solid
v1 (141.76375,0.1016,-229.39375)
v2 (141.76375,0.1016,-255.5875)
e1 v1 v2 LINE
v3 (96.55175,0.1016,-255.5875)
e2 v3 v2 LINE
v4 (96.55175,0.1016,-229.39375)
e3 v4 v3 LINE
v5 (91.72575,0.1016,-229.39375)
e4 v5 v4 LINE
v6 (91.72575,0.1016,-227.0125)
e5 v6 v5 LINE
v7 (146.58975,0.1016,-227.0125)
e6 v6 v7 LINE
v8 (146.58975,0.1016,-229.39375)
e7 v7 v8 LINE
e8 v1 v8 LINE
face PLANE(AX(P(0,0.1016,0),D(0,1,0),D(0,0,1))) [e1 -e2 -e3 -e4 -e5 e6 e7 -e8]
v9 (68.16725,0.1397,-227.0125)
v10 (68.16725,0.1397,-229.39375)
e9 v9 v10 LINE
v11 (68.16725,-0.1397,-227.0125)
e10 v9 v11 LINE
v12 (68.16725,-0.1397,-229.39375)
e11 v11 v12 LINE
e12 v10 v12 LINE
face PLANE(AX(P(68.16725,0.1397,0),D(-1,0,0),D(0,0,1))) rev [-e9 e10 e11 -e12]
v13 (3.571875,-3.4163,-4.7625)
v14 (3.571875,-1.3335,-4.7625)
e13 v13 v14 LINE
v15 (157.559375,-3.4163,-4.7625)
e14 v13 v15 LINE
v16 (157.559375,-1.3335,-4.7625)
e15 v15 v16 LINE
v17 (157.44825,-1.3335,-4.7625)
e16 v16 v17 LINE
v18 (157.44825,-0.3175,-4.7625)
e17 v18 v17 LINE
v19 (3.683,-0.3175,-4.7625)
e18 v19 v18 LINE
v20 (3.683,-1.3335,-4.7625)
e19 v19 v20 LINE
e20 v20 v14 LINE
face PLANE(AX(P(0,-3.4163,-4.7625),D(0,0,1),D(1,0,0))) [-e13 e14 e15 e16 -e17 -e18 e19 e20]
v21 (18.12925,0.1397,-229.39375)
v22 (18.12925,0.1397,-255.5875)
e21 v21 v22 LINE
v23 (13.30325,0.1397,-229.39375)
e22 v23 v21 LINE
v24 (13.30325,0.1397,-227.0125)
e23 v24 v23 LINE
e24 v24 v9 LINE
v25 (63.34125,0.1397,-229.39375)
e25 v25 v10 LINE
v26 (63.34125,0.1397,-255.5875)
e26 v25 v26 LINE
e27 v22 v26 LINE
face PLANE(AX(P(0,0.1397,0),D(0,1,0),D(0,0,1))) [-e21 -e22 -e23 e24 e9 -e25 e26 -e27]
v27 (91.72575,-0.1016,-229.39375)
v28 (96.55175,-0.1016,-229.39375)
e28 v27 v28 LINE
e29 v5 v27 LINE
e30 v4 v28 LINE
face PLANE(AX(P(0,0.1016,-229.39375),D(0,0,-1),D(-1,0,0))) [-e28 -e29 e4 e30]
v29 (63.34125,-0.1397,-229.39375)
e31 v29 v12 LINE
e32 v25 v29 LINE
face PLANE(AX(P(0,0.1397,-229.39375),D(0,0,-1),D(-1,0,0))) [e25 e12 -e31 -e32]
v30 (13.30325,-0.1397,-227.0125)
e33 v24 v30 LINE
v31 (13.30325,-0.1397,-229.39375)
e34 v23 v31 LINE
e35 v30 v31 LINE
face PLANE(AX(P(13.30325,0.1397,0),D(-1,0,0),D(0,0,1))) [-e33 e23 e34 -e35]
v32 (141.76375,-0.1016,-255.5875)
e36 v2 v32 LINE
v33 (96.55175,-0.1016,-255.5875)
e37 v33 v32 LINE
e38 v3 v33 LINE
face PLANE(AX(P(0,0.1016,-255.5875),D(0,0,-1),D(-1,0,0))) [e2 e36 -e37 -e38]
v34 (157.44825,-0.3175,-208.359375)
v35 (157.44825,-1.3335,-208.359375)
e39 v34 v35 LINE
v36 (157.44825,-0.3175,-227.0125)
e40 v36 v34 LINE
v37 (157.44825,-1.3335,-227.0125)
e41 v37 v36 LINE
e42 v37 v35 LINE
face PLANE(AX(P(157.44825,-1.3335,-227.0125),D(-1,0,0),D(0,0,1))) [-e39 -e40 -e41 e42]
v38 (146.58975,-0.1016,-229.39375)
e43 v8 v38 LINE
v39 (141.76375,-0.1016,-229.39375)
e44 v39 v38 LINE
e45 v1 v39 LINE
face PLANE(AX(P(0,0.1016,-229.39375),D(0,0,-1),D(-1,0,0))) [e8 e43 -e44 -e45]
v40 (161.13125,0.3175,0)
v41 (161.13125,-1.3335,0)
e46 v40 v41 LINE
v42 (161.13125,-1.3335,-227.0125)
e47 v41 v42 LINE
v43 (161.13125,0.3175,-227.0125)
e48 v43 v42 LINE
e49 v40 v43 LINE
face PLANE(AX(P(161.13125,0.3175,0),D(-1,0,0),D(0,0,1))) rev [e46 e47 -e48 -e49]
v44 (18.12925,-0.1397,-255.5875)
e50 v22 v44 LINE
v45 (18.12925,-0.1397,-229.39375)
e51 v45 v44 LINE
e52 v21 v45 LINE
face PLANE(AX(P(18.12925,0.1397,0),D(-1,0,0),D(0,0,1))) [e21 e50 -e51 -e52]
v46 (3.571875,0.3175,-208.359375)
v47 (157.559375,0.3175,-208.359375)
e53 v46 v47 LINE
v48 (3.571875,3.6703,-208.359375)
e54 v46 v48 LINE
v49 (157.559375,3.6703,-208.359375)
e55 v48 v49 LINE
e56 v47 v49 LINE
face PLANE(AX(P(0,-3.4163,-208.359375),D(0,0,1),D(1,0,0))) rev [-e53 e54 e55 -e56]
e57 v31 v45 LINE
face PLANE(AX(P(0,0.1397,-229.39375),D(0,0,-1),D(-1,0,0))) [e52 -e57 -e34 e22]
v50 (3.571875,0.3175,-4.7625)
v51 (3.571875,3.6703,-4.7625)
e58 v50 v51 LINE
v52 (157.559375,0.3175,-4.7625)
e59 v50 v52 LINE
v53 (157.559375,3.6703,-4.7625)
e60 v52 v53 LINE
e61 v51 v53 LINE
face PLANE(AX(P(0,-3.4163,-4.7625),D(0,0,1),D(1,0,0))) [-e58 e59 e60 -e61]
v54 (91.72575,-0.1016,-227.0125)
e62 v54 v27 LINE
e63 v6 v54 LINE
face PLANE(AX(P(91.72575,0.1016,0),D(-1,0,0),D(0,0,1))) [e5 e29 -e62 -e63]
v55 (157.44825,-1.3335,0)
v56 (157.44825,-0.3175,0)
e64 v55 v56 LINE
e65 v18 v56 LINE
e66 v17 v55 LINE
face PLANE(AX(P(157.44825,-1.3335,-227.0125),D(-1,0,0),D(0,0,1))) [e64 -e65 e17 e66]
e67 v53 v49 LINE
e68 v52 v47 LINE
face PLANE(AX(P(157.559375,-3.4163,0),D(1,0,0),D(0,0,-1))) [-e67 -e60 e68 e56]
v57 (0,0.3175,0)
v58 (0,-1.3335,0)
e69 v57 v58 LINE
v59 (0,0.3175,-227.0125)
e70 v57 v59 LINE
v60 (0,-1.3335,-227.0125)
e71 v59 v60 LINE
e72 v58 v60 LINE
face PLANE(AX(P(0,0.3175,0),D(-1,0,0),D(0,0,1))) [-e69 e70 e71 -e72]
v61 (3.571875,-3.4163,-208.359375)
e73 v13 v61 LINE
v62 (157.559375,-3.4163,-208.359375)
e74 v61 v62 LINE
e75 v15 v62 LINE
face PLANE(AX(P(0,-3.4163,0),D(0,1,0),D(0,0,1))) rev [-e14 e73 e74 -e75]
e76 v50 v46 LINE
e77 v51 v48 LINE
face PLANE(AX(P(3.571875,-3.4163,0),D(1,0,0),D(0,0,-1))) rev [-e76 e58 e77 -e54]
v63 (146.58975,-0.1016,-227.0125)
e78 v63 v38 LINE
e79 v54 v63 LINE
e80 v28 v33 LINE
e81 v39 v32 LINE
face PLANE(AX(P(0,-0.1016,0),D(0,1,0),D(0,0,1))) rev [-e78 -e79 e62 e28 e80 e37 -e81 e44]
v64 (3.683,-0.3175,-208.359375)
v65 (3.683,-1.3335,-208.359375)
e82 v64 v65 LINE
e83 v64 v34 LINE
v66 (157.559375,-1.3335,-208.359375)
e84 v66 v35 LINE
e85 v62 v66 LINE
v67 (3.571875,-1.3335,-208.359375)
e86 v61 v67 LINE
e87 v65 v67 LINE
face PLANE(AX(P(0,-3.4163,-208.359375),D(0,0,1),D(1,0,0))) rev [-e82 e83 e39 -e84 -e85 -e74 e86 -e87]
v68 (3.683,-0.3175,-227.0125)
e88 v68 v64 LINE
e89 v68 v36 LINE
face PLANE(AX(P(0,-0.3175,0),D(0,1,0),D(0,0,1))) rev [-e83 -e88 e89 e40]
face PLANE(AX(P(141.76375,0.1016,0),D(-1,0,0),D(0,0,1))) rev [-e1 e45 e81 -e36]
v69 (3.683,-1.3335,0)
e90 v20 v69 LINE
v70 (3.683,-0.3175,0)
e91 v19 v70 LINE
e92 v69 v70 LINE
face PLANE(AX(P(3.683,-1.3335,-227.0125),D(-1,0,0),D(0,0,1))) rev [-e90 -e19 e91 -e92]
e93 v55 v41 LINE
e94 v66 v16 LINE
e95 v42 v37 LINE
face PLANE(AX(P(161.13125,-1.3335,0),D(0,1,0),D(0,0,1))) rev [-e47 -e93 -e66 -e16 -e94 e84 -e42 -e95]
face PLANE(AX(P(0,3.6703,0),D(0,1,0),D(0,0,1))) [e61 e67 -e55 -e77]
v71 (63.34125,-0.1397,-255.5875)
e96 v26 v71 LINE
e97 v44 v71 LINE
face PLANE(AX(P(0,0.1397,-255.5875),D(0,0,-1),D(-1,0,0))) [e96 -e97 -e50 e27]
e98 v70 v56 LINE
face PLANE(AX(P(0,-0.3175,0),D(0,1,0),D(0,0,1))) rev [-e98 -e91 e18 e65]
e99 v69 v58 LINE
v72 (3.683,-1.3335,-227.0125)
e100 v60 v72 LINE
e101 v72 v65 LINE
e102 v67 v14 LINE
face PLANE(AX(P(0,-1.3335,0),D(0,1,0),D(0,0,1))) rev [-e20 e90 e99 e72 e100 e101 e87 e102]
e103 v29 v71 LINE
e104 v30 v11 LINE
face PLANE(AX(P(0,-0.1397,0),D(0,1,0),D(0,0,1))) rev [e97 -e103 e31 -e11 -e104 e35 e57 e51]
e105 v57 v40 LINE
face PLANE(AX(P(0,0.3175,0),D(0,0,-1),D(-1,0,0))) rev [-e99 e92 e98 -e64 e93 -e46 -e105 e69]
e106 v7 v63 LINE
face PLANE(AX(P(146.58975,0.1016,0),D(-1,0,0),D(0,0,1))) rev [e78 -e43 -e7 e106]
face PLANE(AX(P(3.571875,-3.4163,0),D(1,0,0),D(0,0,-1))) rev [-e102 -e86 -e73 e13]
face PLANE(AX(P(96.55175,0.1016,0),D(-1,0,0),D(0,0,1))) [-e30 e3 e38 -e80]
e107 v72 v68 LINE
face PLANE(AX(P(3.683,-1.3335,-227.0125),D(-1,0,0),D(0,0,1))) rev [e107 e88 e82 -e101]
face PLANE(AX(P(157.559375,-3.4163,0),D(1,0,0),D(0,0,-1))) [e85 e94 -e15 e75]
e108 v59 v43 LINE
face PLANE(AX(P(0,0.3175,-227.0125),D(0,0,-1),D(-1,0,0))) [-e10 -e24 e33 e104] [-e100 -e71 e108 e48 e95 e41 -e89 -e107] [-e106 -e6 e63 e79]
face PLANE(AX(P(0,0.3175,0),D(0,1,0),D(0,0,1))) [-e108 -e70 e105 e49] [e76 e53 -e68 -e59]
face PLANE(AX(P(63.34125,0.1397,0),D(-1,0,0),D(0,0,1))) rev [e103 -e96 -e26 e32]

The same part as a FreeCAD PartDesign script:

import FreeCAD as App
import Part
import Sketcher
from FreeCAD import Vector
Q = App.Units.Quantity


def add_polygon(sketch, points):
    """Adds a closed chain of lines whose ends are joined by coincident constraints."""
    first, n = sketch.GeometryCount, len(points)
    for a, b in zip(points, points[1:] + points[:1]):
        sketch.addGeometry(Part.LineSegment(App.Vector(*a, 0), App.Vector(*b, 0)), False)
    for i in range(n):
        sketch.addConstraint(Sketcher.Constraint("Coincident", first + i, 2, first + (i + 1) % n, 1))

doc = App.newDocument("Part")
params = doc.addObject("Spreadsheet::Sheet", "Params")
for row, (alias, value) in enumerate([
    ("sketch1_width", "6.34375 in"),
    ("sketch1_width2", "6.0625 in"),
    ("sketch1_height", "8.9375 in"),
    ("sketch1_height2", "8.015625 in"),
    ("pad1_length", "0.025 in"),
    ("sketch2_width", "6.0625 in"),
    ("sketch2_height", "8.015625 in"),
    ("pad2_length", "0.1445 in"),
    ("pad2_length2", "0.1345 in"),
    ("sketch3_width", "0.19 in"),
    ("sketch3_width2", "1.78 in"),
    ("sketch3_height", "0.09375 in"),
    ("sketch3_height2", "1.03125 in"),
    ("pad3_length", "0.008 in"),
    ("sketch4_width", "2.16 in"),
    ("sketch4_width2", "0.19 in"),
    ("sketch4_height", "0.09375 in"),
    ("sketch4_height2", "1.03125 in"),
    ("pad4_length", "0.011 in"),
    ("sketch5_width", "0.145 in"),
    ("sketch5_height", "8.9375 in"),
    ("pad5_length", "0.04 in"),
], start=1):
    params.set(f"A{row}", alias)
    params.set(f"B{row}", "=" + value)
    params.setAlias(f"B{row}", alias)

body = doc.addObject("PartDesign::Body", "Body")

sketch1 = body.newObject("Sketcher::SketchObject", "Sketch")
sketch1.AttachmentSupport = (doc.getObject("XZ_Plane"), [""])
sketch1.MapMode = "FlatFace"
add_polygon(sketch1, [(0, -227), (0, 0), (161, 0), (161, -227)])
add_polygon(sketch1, [(158, -5), (4, -5), (4, -208), (158, -208)])
sketch1.addConstraint(Sketcher.Constraint("Vertical", 0))
sketch1.addConstraint(Sketcher.Constraint("Horizontal", 1))
sketch1.addConstraint(Sketcher.Constraint("Vertical", 2))
sketch1.addConstraint(Sketcher.Constraint("Horizontal", 3))
sketch1.addConstraint(Sketcher.Constraint("Horizontal", 4))
sketch1.addConstraint(Sketcher.Constraint("Vertical", 5))
sketch1.addConstraint(Sketcher.Constraint("Horizontal", 6))
sketch1.addConstraint(Sketcher.Constraint("Vertical", 7))
sketch1.addConstraint(Sketcher.Constraint("Coincident", 0, 2, -1, 1))
sketch1.addConstraint(Sketcher.Constraint("DistanceX", 1, 1, 1, 2, Q("6.34375 in")))
sketch1.addConstraint(Sketcher.Constraint("DistanceX", 4, 2, 4, 1, Q("6.0625 in")))
sketch1.addConstraint(Sketcher.Constraint("DistanceY", 0, 1, 0, 2, Q("8.9375 in")))
sketch1.addConstraint(Sketcher.Constraint("DistanceY", 5, 2, 5, 1, Q("8.015625 in")))
sketch1.addConstraint(Sketcher.Constraint("DistanceY", 3, 2, 4, 2, Q("8.75 in")))
sketch1.addConstraint(Sketcher.Constraint("DistanceX", -1, 1, 4, 2, Q("0.140625 in")))
sketch1.setExpression("Constraints[17]", "Params.sketch1_width")
sketch1.setExpression("Constraints[18]", "Params.sketch1_width2")
sketch1.setExpression("Constraints[19]", "Params.sketch1_height")
sketch1.setExpression("Constraints[20]", "Params.sketch1_height2")
pad1 = body.newObject("PartDesign::Pad", "Pad")
pad1.Profile = sketch1
pad1.setExpression("Length", "Params.pad1_length")
pad1.Midplane = True

sketch2 = body.newObject("Sketcher::SketchObject", "Sketch001")
sketch2.AttachmentSupport = (doc.getObject("XZ_Plane"), [""])
sketch2.MapMode = "FlatFace"
add_polygon(sketch2, [(4, -208), (4, -5), (158, -5), (158, -208)])
sketch2.addConstraint(Sketcher.Constraint("Vertical", 0))
sketch2.addConstraint(Sketcher.Constraint("Horizontal", 1))
sketch2.addConstraint(Sketcher.Constraint("Vertical", 2))
sketch2.addConstraint(Sketcher.Constraint("Horizontal", 3))
sketch2.addConstraint(Sketcher.Constraint("DistanceX", 1, 1, 1, 2, Q("6.0625 in")))
sketch2.addConstraint(Sketcher.Constraint("DistanceY", 0, 1, 0, 2, Q("8.015625 in")))
sketch2.addConstraint(Sketcher.Constraint("DistanceX", -1, 1, 0, 2, Q("0.140625 in")))
sketch2.addConstraint(Sketcher.Constraint("DistanceY", 0, 2, -1, 1, Q("0.1875 in")))
sketch2.setExpression("Constraints[8]", "Params.sketch2_width")
sketch2.setExpression("Constraints[9]", "Params.sketch2_height")
pad2 = body.newObject("PartDesign::Pad", "Pad001")
pad2.Profile = sketch2
pad2.Type = "TwoLengths"
pad2.setExpression("Length", "Params.pad2_length")
pad2.setExpression("Length2", "Params.pad2_length2")
pad2.Reversed = True

sketch3 = body.newObject("Sketcher::SketchObject", "Sketch002")
sketch3.AttachmentSupport = (doc.getObject("XZ_Plane"), [""])
sketch3.MapMode = "FlatFace"
add_polygon(sketch3, [(146.6, -227), (146.6, -229.4), (141.8, -229.4), (141.8, -255.6), (96.6, -255.6), (96.6, -229.4), (91.7, -229.4), (91.7, -227)])
sketch3.addConstraint(Sketcher.Constraint("Vertical", 0))
sketch3.addConstraint(Sketcher.Constraint("Horizontal", 1))
sketch3.addConstraint(Sketcher.Constraint("Vertical", 2))
sketch3.addConstraint(Sketcher.Constraint("Horizontal", 3))
sketch3.addConstraint(Sketcher.Constraint("Vertical", 4))
sketch3.addConstraint(Sketcher.Constraint("Horizontal", 5))
sketch3.addConstraint(Sketcher.Constraint("Vertical", 6))
sketch3.addConstraint(Sketcher.Constraint("Horizontal", 7))
sketch3.addConstraint(Sketcher.Constraint("Horizontal", 1, 2, 4, 2))
sketch3.addConstraint(Sketcher.Constraint("Equal", 1, 5))
sketch3.addConstraint(Sketcher.Constraint("DistanceX", 1, 2, 1, 1, Q("0.19 in")))
sketch3.addConstraint(Sketcher.Constraint("DistanceX", 3, 2, 3, 1, Q("1.78 in")))
sketch3.addConstraint(Sketcher.Constraint("DistanceY", 0, 2, 0, 1, Q("0.09375 in")))
sketch3.addConstraint(Sketcher.Constraint("DistanceY", 2, 2, 2, 1, Q("1.03125 in")))
sketch3.addConstraint(Sketcher.Constraint("DistanceY", 0, 2, -1, 1, Q("9.03125 in")))
sketch3.addConstraint(Sketcher.Constraint("DistanceX", -1, 1, 0, 2, Q("146.58975 mm")))
sketch3.setExpression("Constraints[18]", "Params.sketch3_width")
sketch3.setExpression("Constraints[19]", "Params.sketch3_width2")
sketch3.setExpression("Constraints[20]", "Params.sketch3_height")
sketch3.setExpression("Constraints[21]", "Params.sketch3_height2")
pad3 = body.newObject("PartDesign::Pad", "Pad002")
pad3.Profile = sketch3
pad3.setExpression("Length", "Params.pad3_length")
pad3.Midplane = True

sketch4 = body.newObject("Sketcher::SketchObject", "Sketch003")
sketch4.AttachmentSupport = (doc.getObject("XZ_Plane"), [""])
sketch4.MapMode = "FlatFace"
add_polygon(sketch4, [(13.3, -229.4), (13.3, -227), (68.2, -227), (68.2, -229.4), (63.3, -229.4), (63.3, -255.6), (18.1, -255.6), (18.1, -229.4)])
sketch4.addConstraint(Sketcher.Constraint("Vertical", 0))
sketch4.addConstraint(Sketcher.Constraint("Horizontal", 1))
sketch4.addConstraint(Sketcher.Constraint("Vertical", 2))
sketch4.addConstraint(Sketcher.Constraint("Horizontal", 3))
sketch4.addConstraint(Sketcher.Constraint("Vertical", 4))
sketch4.addConstraint(Sketcher.Constraint("Horizontal", 5))
sketch4.addConstraint(Sketcher.Constraint("Vertical", 6))
sketch4.addConstraint(Sketcher.Constraint("Horizontal", 7))
sketch4.addConstraint(Sketcher.Constraint("Horizontal", 3, 2, 6, 2))
sketch4.addConstraint(Sketcher.Constraint("Equal", 3, 7))
sketch4.addConstraint(Sketcher.Constraint("DistanceX", 1, 1, 1, 2, Q("2.16 in")))
sketch4.addConstraint(Sketcher.Constraint("DistanceX", 3, 2, 3, 1, Q("0.19 in")))
sketch4.addConstraint(Sketcher.Constraint("DistanceY", 0, 1, 0, 2, Q("0.09375 in")))
sketch4.addConstraint(Sketcher.Constraint("DistanceY", 4, 2, 4, 1, Q("1.03125 in")))
sketch4.addConstraint(Sketcher.Constraint("DistanceY", 0, 2, -1, 1, Q("8.9375 in")))
sketch4.addConstraint(Sketcher.Constraint("DistanceX", -1, 1, 0, 2, Q("13.30325 mm")))
sketch4.setExpression("Constraints[18]", "Params.sketch4_width")
sketch4.setExpression("Constraints[19]", "Params.sketch4_width2")
sketch4.setExpression("Constraints[20]", "Params.sketch4_height")
sketch4.setExpression("Constraints[21]", "Params.sketch4_height2")
pad4 = body.newObject("PartDesign::Pad", "Pad003")
pad4.Profile = sketch4
pad4.setExpression("Length", "Params.pad4_length")
pad4.Midplane = True

sketch5 = body.newObject("Sketcher::SketchObject", "Sketch004")
sketch5.AttachmentSupport = (doc.getObject("XZ_Plane"), [""])
sketch5.MapMode = "FlatFace"
sketch5.AttachmentOffset = App.Placement(Vector(0, 0, 0.0125 * 25.4), App.Rotation())
add_polygon(sketch5, [(0, 0), (0, -227), (3.7, -227), (3.7, 0)])
sketch5.addConstraint(Sketcher.Constraint("Vertical", 0))
sketch5.addConstraint(Sketcher.Constraint("Horizontal", 1))
sketch5.addConstraint(Sketcher.Constraint("Vertical", 2))
sketch5.addConstraint(Sketcher.Constraint("Horizontal", 3))
sketch5.addConstraint(Sketcher.Constraint("Coincident", 3, 2, -1, 1))
sketch5.addConstraint(Sketcher.Constraint("DistanceX", 1, 1, 1, 2, Q("0.145 in")))
sketch5.addConstraint(Sketcher.Constraint("DistanceY", 0, 2, 0, 1, Q("8.9375 in")))
sketch5.setExpression("Constraints[9]", "Params.sketch5_width")
sketch5.setExpression("Constraints[10]", "Params.sketch5_height")
pad5 = body.newObject("PartDesign::Pad", "Pad004")
pad5.Profile = sketch5
pad5.setExpression("Length", "Params.pad5_length")
doc.recompute()

datumplane = body.newObject("PartDesign::Plane", "DatumPlane")
datumplane.AttachmentSupport = (doc.getObject("YZ_Plane"), [""])
datumplane.MapMode = "FlatFace"
datumplane.AttachmentOffset = App.Placement(Vector(0, 0, 3.171875 * 25.4), App.Rotation())
mirrored = body.newObject("PartDesign::Mirrored", "Mirrored")
mirrored.Originals = [pad5]
mirrored.MirrorPlane = (datumplane, [""])
body.Tip = mirrored

doc.recompute()
